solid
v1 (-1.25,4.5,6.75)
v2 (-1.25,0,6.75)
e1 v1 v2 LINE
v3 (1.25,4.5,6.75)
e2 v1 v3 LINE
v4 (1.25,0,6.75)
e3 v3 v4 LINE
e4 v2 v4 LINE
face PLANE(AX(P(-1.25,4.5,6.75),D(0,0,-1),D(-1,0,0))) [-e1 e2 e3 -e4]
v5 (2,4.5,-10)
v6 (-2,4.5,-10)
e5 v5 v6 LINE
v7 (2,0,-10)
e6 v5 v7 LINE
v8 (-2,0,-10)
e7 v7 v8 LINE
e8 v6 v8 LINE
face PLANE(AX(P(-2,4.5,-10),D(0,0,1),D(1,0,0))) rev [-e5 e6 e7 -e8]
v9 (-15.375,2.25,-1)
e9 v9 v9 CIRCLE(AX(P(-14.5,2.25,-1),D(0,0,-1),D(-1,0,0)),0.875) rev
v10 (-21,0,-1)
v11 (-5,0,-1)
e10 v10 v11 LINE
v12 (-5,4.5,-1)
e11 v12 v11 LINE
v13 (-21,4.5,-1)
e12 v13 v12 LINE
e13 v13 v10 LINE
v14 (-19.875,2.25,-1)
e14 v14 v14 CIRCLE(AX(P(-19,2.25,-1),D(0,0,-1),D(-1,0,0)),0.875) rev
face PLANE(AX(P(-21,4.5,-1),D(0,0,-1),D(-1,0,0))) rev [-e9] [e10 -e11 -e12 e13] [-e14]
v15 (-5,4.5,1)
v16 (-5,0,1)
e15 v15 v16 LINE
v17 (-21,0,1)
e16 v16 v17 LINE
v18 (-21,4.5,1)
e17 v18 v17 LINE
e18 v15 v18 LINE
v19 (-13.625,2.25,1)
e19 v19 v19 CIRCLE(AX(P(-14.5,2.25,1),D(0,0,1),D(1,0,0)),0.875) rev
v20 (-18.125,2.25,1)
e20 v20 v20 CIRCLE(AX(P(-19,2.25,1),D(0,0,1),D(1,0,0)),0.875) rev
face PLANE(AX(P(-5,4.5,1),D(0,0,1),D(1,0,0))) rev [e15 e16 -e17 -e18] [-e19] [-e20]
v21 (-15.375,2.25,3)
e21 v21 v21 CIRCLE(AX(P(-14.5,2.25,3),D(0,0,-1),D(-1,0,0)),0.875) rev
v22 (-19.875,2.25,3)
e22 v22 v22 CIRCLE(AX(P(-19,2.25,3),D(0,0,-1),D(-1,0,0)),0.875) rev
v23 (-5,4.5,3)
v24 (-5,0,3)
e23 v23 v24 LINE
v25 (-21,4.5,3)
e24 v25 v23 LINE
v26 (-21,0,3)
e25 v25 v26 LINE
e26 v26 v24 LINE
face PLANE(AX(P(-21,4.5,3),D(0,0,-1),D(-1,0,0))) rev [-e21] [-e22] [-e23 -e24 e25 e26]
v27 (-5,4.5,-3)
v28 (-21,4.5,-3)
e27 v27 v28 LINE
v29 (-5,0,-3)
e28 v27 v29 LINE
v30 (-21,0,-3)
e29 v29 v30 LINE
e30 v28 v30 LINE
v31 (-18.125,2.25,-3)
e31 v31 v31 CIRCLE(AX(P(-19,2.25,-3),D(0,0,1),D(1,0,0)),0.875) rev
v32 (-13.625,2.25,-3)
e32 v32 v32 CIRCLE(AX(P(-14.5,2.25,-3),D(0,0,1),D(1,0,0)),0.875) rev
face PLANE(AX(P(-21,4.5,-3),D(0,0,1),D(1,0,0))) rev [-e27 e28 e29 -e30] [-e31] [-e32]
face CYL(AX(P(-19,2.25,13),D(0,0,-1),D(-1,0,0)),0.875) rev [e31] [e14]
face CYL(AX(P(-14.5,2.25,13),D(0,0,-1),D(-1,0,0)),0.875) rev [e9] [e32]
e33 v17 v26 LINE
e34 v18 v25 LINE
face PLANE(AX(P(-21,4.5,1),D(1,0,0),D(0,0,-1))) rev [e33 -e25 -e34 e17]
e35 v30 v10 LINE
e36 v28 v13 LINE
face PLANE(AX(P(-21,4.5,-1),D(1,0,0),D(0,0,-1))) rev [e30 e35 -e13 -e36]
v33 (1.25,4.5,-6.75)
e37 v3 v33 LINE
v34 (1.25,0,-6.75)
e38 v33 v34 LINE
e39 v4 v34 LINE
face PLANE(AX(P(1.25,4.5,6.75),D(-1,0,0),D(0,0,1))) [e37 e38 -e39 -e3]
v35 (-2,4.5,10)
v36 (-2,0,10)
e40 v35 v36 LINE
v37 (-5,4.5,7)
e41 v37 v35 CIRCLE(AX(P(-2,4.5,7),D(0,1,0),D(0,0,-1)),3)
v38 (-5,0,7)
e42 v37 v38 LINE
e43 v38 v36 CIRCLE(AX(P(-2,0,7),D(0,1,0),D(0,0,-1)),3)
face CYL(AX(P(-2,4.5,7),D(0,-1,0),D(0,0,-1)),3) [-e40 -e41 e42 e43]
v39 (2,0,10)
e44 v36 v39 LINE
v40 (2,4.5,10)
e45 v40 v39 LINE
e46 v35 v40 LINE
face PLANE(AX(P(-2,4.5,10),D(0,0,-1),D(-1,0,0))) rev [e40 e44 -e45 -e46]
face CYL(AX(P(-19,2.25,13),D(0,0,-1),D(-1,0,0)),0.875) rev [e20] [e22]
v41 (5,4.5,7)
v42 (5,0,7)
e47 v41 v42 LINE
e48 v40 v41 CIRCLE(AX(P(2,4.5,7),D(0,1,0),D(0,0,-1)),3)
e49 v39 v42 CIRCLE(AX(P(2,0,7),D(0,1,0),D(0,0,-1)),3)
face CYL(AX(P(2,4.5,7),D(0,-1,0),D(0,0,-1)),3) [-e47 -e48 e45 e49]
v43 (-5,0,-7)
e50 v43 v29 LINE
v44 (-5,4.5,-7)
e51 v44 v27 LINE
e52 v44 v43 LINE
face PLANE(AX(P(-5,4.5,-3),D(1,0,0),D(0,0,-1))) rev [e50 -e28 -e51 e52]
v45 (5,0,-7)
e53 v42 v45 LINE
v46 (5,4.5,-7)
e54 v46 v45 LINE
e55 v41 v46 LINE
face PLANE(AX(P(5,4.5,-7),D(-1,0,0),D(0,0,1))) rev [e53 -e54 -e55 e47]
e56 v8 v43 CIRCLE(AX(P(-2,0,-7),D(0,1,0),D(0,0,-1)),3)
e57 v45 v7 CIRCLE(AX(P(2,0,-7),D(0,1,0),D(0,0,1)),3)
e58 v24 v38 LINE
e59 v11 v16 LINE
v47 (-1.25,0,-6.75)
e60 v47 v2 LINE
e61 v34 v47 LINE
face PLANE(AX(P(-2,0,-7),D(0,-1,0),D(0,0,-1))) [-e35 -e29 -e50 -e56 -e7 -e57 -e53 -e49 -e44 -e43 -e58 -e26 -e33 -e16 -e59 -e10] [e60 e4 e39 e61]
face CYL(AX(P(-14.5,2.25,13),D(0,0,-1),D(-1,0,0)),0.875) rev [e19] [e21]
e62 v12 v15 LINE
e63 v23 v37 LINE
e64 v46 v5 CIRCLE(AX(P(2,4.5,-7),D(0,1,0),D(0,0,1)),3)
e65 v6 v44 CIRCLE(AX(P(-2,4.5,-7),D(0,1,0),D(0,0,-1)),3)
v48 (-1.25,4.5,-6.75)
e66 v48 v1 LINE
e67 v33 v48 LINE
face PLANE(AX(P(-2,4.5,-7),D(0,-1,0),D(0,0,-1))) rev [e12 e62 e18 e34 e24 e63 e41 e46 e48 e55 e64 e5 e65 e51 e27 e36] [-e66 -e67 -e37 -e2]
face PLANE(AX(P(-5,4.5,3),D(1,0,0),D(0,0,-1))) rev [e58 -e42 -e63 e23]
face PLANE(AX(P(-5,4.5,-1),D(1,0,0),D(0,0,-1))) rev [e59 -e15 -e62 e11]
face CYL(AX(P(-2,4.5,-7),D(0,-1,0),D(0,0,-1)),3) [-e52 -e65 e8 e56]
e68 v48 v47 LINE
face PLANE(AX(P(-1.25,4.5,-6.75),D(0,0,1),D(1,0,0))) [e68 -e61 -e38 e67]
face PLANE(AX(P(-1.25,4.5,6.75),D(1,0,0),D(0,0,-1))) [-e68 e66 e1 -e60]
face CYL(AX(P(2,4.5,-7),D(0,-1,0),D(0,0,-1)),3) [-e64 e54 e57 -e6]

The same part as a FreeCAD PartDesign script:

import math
import FreeCAD as App
import Part
import Sketcher
Q = App.Units.Quantity

doc = App.newDocument("Part")
body = doc.addObject("PartDesign::Body", "Body")

sketch1 = doc.addObject("Sketcher::SketchObject", "Sketch")
body.addObject(sketch1)
sketch1.AttachmentSupport = (doc.XZ_Plane, [""])
sketch1.MapMode = "FlatFace"
sketch1.addGeometry([
    Part.LineSegment(App.Vector(-2, 10, 0), App.Vector(2, 10, 0)),
    Part.ArcOfCircle(Part.Circle(App.Vector(2, 7, 0), App.Vector(0, 0, 1), 3), math.radians(0), math.radians(90)),
    Part.LineSegment(App.Vector(5, 7, 0), App.Vector(5, -7, 0)),
    Part.ArcOfCircle(Part.Circle(App.Vector(2, -7, 0), App.Vector(0, 0, 1), 3), math.radians(-90), math.radians(0)),
    Part.LineSegment(App.Vector(2, -10, 0), App.Vector(-2, -10, 0)),
    Part.ArcOfCircle(Part.Circle(App.Vector(-2, -7, 0), App.Vector(0, 0, 1), 3), math.radians(180), math.radians(270)),
    Part.LineSegment(App.Vector(-5, -7, 0), App.Vector(-5, -3, 0)),
    Part.LineSegment(App.Vector(-5, -3, 0), App.Vector(-21, -3, 0)),
    Part.LineSegment(App.Vector(-21, -3, 0), App.Vector(-21, -1, 0)),
    Part.LineSegment(App.Vector(-21, -1, 0), App.Vector(-5, -1, 0)),
    Part.LineSegment(App.Vector(-5, -1, 0), App.Vector(-5, 1, 0)),
    Part.LineSegment(App.Vector(-5, 1, 0), App.Vector(-21, 1, 0)),
    Part.LineSegment(App.Vector(-21, 1, 0), App.Vector(-21, 3, 0)),
    Part.LineSegment(App.Vector(-21, 3, 0), App.Vector(-5, 3, 0)),
    Part.LineSegment(App.Vector(-5, 3, 0), App.Vector(-5, 7, 0)),
    Part.ArcOfCircle(Part.Circle(App.Vector(-2, 7, 0), App.Vector(0, 0, 1), 3), math.radians(90), math.radians(180)),
    Part.LineSegment(App.Vector(1.2, 6.8, 0), App.Vector(-1.2, 6.8, 0)),
    Part.LineSegment(App.Vector(-1.2, 6.8, 0), App.Vector(-1.2, -6.8, 0)),
    Part.LineSegment(App.Vector(-1.2, -6.8, 0), App.Vector(1.2, -6.8, 0)),
    Part.LineSegment(App.Vector(1.2, -6.8, 0), App.Vector(1.2, 6.8, 0)),
], False)
sketch1.addConstraint([
    Sketcher.Constraint("Tangent", 0, 2, 1, 2),
    Sketcher.Constraint("Tangent", 1, 1, 2, 1),
    Sketcher.Constraint("Tangent", 2, 2, 3, 2),
    Sketcher.Constraint("Tangent", 3, 1, 4, 1),
    Sketcher.Constraint("Tangent", 4, 2, 5, 2),
    Sketcher.Constraint("Tangent", 5, 1, 6, 1),
    Sketcher.Constraint("Coincident", 6, 2, 7, 1),
    Sketcher.Constraint("Coincident", 7, 2, 8, 1),
    Sketcher.Constraint("Coincident", 8, 2, 9, 1),
    Sketcher.Constraint("Coincident", 9, 2, 10, 1),
    Sketcher.Constraint("Coincident", 10, 2, 11, 1),
    Sketcher.Constraint("Coincident", 11, 2, 12, 1),
    Sketcher.Constraint("Coincident", 12, 2, 13, 1),
    Sketcher.Constraint("Coincident", 13, 2, 14, 1),
    Sketcher.Constraint("Tangent", 14, 2, 15, 2),
    Sketcher.Constraint("Tangent", 15, 1, 0, 1),
    Sketcher.Constraint("Coincident", 16, 2, 17, 1),
    Sketcher.Constraint("Coincident", 17, 2, 18, 1),
    Sketcher.Constraint("Coincident", 18, 2, 19, 1),
    Sketcher.Constraint("Coincident", 19, 2, 16, 1),
    Sketcher.Constraint("Horizontal", 0),
    Sketcher.Constraint("Vertical", 2),
    Sketcher.Constraint("Horizontal", 4),
    Sketcher.Constraint("Vertical", 6),
    Sketcher.Constraint("Horizontal", 7),
    Sketcher.Constraint("Vertical", 8),
    Sketcher.Constraint("Horizontal", 9),
    Sketcher.Constraint("Vertical", 10),
    Sketcher.Constraint("Horizontal", 11),
    Sketcher.Constraint("Vertical", 12),
    Sketcher.Constraint("Horizontal", 13),
    Sketcher.Constraint("Vertical", 14),
    Sketcher.Constraint("Horizontal", 16),
    Sketcher.Constraint("Vertical", 17),
    Sketcher.Constraint("Horizontal", 18),
    Sketcher.Constraint("Vertical", 19),
    Sketcher.Constraint("Equal", 1, 3),
    Sketcher.Constraint("Equal", 3, 5),
    Sketcher.Constraint("Equal", 5, 15),
    Sketcher.Constraint("Symmetric", 1, 3, 5, 3, -1, 1),
    Sketcher.Constraint("Symmetric", 16, 2, 18, 2, -1, 1),
    Sketcher.Constraint("Symmetric", 8, 2, 11, 2, -1),
    Sketcher.Constraint("Symmetric", 6, 2, 13, 2, -1),
    Sketcher.Constraint("Vertical", 6, 2, 9, 2),
    Sketcher.Constraint("Equal", 4, 6),
    Sketcher.Constraint("Equal", 8, 10),
    Sketcher.Constraint("Radius", 1, Q("3 mm")),
    Sketcher.Constraint("DistanceX", 0, 1, 0, 2, Q("4 mm")),
    Sketcher.Constraint("DistanceX", 7, 2, 7, 1, Q("16 mm")),
    Sketcher.Constraint("DistanceY", 2, 2, 2, 1, Q("14 mm")),
    Sketcher.Constraint("DistanceX", 16, 2, 16, 1, Q("2.5 mm")),
    Sketcher.Constraint("DistanceY", 17, 2, 17, 1, Q("13.5 mm")),
])
pad1 = doc.addObject("PartDesign::Pad", "Pad")
body.addObject(pad1)
pad1.Profile = sketch1
pad1.Length = 4.5
pad1.Reversed = True

sketch2 = doc.addObject("Sketcher::SketchObject", "Sketch001")
body.addObject(sketch2)
sketch2.AttachmentSupport = (doc.XY_Plane, [""])
sketch2.MapMode = "FlatFace"
sketch2.AttachmentOffset = App.Placement(App.Vector(0, 0, 3), App.Rotation())
sketch2.addGeometry([
    Part.Circle(App.Vector(-19, 2.2, 0), App.Vector(0, 0, 1), 0.9),
    Part.Circle(App.Vector(-14.5, 2.2, 0), App.Vector(0, 0, 1), 0.9),
], False)
sketch2.addConstraint([
    Sketcher.Constraint("Equal", 0, 1),
    Sketcher.Constraint("Horizontal", 0, 3, 1, 3),
    Sketcher.Constraint("Diameter", 0, Q("1.75 mm")),
    Sketcher.Constraint("DistanceX", 0, 3, -1, 1, Q("19 mm")),
    Sketcher.Constraint("DistanceX", 1, 3, -1, 1, Q("14.5 mm")),
    Sketcher.Constraint("DistanceY", -1, 1, 0, 3, Q("2.25 mm")),
])
pocket1 = doc.addObject("PartDesign::Pocket", "Pocket")
body.addObject(pocket1)
pocket1.Profile = sketch2
pocket1.Type = "ThroughAll"
pocket1.Midplane = True

doc.recompute()
